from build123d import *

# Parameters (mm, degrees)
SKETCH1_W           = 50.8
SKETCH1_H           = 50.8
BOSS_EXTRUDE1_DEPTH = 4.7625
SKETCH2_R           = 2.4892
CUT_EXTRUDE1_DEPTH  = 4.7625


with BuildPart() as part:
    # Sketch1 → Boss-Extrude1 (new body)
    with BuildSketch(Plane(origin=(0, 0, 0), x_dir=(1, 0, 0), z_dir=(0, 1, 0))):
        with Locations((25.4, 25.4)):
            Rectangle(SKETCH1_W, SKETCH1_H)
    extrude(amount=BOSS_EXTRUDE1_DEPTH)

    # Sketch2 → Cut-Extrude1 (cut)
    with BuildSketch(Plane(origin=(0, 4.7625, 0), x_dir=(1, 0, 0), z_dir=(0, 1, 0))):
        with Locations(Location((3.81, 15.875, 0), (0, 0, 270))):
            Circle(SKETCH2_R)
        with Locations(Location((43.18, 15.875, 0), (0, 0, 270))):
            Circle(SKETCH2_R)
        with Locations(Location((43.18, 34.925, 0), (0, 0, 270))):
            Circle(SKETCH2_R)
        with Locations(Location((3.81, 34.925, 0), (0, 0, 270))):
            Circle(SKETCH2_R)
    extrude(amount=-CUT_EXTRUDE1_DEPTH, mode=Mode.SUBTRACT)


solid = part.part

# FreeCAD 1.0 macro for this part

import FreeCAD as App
import Part
import Sketcher
Q = App.Units.Quantity


def add_polygon(sketch, points):
    """Adds a closed chain of lines whose ends are joined by coincident constraints."""
    first, n = sketch.GeometryCount, len(points)
    for a, b in zip(points, points[1:] + points[:1]):
        sketch.addGeometry(Part.LineSegment(App.Vector(*a, 0), App.Vector(*b, 0)), False)
    for i in range(n):
        sketch.addConstraint(Sketcher.Constraint("Coincident", first + i, 2, first + (i + 1) % n, 1))

doc = App.newDocument("Part")
body = doc.addObject("PartDesign::Body", "Body")

# Sketch on XZ plane
sketch1 = doc.addObject("Sketcher::SketchObject", "Sketch")
body.addObject(sketch1)
sketch1.AttachmentSupport = (doc.XZ_Plane, [""])
sketch1.MapMode = "FlatFace"
add_polygon(sketch1, [(0, -51), (0, 0), (51, 0), (51, -51)])  # lines 0-3
sketch1.addConstraint([
    Sketcher.Constraint("Vertical", 0),
    Sketcher.Constraint("Horizontal", 1),
    Sketcher.Constraint("Vertical", 2),
    Sketcher.Constraint("Horizontal", 3),
    Sketcher.Constraint("Coincident", 0, 2, -1, 1),
    Sketcher.Constraint("Equal", 3, 0),
    Sketcher.Constraint("DistanceX", 1, 1, 1, 2, Q("2 in")),
])
pad1 = doc.addObject("PartDesign::Pad", "Pad")
body.addObject(pad1)
pad1.Profile = sketch1
pad1.Length = Q("0.1875 in")
pad1.Reversed = True

# Sketch on XZ plane
sketch2 = doc.addObject("Sketcher::SketchObject", "Sketch001")
body.addObject(sketch2)
sketch2.AttachmentSupport = (doc.XZ_Plane, [""])
sketch2.MapMode = "FlatFace"
sketch2.AttachmentOffset = App.Placement(App.Vector(0, 0, -0.1875 * 25.4), App.Rotation())
sketch2.addGeometry([
    Part.Circle(App.Vector(3.8, -15.9, 0), App.Vector(0, 0, 1), 2.5),
    Part.Circle(App.Vector(43.2, -15.9, 0), App.Vector(0, 0, 1), 2.5),
    Part.Circle(App.Vector(43.2, -34.9, 0), App.Vector(0, 0, 1), 2.5),
    Part.Circle(App.Vector(3.8, -34.9, 0), App.Vector(0, 0, 1), 2.5),
], False)
sketch2.addConstraint([
    Sketcher.Constraint("Equal", 0, 1),
    Sketcher.Constraint("Equal", 1, 2),
    Sketcher.Constraint("Equal", 2, 3),
    Sketcher.Constraint("Horizontal", 0, 3, 1, 3),
    Sketcher.Constraint("Horizontal", 2, 3, 3, 3),
    Sketcher.Constraint("Vertical", 1, 3, 2, 3),
    Sketcher.Constraint("Vertical", 0, 3, 3, 3),
    Sketcher.Constraint("Diameter", 0, Q("0.196 in")),
    Sketcher.Constraint("DistanceX", -1, 1, 1, 3, Q("1.7 in")),
    Sketcher.Constraint("DistanceX", -1, 1, 0, 3, Q("0.15 in")),
    Sketcher.Constraint("DistanceY", 2, 3, 1, 3, Q("0.75 in")),
    Sketcher.Constraint("DistanceY", 0, 3, -1, 1, Q("0.625 in")),
])
pocket1 = doc.addObject("PartDesign::Pocket", "Pocket")
body.addObject(pocket1)
pocket1.Profile = sketch2
pocket1.Length = Q("0.1875 in")
pocket1.Reversed = True

doc.recompute()
